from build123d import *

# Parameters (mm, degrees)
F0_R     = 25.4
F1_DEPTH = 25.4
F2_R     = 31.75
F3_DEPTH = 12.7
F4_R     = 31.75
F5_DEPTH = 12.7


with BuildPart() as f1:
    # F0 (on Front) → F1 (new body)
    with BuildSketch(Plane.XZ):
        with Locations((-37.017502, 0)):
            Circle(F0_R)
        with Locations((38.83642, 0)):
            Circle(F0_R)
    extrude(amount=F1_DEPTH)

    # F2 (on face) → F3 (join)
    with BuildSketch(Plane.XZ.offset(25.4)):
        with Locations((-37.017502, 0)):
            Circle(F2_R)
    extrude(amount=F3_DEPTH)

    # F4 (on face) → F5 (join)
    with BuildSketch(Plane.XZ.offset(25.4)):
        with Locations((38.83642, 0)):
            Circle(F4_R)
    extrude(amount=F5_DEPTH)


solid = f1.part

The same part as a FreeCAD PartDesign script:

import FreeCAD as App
import Part
import Sketcher

V = App.Vector
Q = App.Units.Quantity

doc = App.newDocument("Part")
body = doc.addObject("PartDesign::Body", "Body")
body.AllowCompound = True

sketch1 = body.newObject("Sketcher::SketchObject", "Sketch")
sketch1.AttachmentSupport = (doc.getObject("XZ_Plane"), [""])
sketch1.MapMode = "FlatFace"
sketch1.addGeometry([
    Part.Circle(V(-37, 0, 0), V(0, 0, 1), 25),
    Part.Circle(V(39, 0, 0), V(0, 0, 1), 25),
], False)
sketch1.addConstraint([
    Sketcher.Constraint("Equal", 0, 1),
    Sketcher.Constraint("PointOnObject", 0, 3, -1),
    Sketcher.Constraint("PointOnObject", 1, 3, -1),
    Sketcher.Constraint("Diameter", 0, Q("2 in")),
    Sketcher.Constraint("DistanceX", -1, 1, 1, 3, Q("38.83642 mm")),
    Sketcher.Constraint("DistanceX", 0, 3, 1, 3, Q("75.853922 mm")),
])
pad1 = body.newObject("PartDesign::Pad", "Pad")
pad1.Profile = sketch1
pad1.Length = Q("1 in")

sketch2 = body.newObject("Sketcher::SketchObject", "Sketch001")
sketch2.AttachmentSupport = (doc.getObject("XZ_Plane"), [""])
sketch2.MapMode = "FlatFace"
sketch2.AttachmentOffset = App.Placement(V(0, 0, 1 * 25.4), App.Rotation())
sketch2.addGeometry(Part.Circle(V(-37, 0, 0), V(0, 0, 1), 32), False)
sketch2.addConstraint([
    Sketcher.Constraint("PointOnObject", 0, 3, -1),
    Sketcher.Constraint("Diameter", 0, Q("2.5 in")),
    Sketcher.Constraint("DistanceX", 0, 3, -1, 1, Q("37.017502 mm")),
])
pad2 = body.newObject("PartDesign::Pad", "Pad001")
pad2.Profile = sketch2
pad2.Length = Q("0.5 in")

sketch3 = body.newObject("Sketcher::SketchObject", "Sketch002")
sketch3.AttachmentSupport = (doc.getObject("XZ_Plane"), [""])
sketch3.MapMode = "FlatFace"
sketch3.AttachmentOffset = App.Placement(V(0, 0, 1 * 25.4), App.Rotation())
sketch3.addGeometry(Part.Circle(V(39, 0, 0), V(0, 0, 1), 32), False)
sketch3.addConstraint([
    Sketcher.Constraint("PointOnObject", 0, 3, -1),
    Sketcher.Constraint("Diameter", 0, Q("2.5 in")),
    Sketcher.Constraint("DistanceX", -1, 1, 0, 3, Q("38.83642 mm")),
])
pad3 = body.newObject("PartDesign::Pad", "Pad002")
pad3.Profile = sketch3
pad3.Length = Q("0.5 in")

doc.recompute()
